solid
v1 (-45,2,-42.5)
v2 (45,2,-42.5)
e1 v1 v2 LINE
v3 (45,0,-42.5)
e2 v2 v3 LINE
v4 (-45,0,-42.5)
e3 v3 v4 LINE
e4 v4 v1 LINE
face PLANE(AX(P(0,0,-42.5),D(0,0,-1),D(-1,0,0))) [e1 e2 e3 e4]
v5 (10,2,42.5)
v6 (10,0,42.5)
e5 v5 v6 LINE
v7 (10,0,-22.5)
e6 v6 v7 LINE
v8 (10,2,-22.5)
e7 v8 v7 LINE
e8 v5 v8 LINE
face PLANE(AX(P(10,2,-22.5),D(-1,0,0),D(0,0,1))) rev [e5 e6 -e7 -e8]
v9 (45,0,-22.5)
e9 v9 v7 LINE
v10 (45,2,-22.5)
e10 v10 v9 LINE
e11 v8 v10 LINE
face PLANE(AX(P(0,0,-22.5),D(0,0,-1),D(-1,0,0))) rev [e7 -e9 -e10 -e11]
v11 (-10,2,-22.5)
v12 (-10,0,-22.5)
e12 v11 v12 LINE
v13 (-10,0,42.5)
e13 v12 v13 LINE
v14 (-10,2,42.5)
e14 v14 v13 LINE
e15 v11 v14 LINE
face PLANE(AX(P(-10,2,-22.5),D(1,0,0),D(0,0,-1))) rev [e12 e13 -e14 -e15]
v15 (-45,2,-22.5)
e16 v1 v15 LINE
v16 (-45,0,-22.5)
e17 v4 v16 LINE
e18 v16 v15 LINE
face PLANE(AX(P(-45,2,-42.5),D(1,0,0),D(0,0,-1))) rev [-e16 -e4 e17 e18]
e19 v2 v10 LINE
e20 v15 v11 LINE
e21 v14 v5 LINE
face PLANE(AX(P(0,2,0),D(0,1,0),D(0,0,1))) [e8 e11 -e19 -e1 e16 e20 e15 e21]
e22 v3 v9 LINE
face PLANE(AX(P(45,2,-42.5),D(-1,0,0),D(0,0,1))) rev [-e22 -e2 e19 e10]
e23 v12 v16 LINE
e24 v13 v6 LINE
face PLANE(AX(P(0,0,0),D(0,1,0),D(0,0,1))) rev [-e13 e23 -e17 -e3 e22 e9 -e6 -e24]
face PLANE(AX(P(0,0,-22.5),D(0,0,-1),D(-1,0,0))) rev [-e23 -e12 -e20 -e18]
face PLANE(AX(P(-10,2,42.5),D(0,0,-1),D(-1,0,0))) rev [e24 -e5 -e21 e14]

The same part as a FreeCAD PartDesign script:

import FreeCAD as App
import Part
import Sketcher

doc = App.newDocument("Part")
params = doc.addObject("Spreadsheet::Sheet", "Params")
for row, (alias, value) in enumerate([
    ("sketch1_width", "20 mm"),
    ("sketch1_height", "65 mm"),
    ("pad1_length", "2 mm"),
    ("sketch2_width", "90 mm"),
    ("sketch2_height", "2 mm"),
    ("pad2_length", "20 mm"),
], start=1):
    params.set(f"A{row}", alias)
    params.set(f"B{row}", "=" + value)
    params.setAlias(f"B{row}", alias)

body = doc.addObject("PartDesign::Body", "Body")

sketch1 = body.newObject("Sketcher::SketchObject", "Sketch")
sketch1.AttachmentSupport = (doc.getObject("XZ_Plane"), [""])
sketch1.MapMode = "FlatFace"
sketch1.addGeometry([
    Part.LineSegment(App.Vector(-10, -22, 0), App.Vector(-10, 42, 0)),
    Part.LineSegment(App.Vector(-10, 42, 0), App.Vector(10, 42, 0)),
    Part.LineSegment(App.Vector(10, 42, 0), App.Vector(10, -22, 0)),
    Part.LineSegment(App.Vector(10, -22, 0), App.Vector(-10, -22, 0)),
], False)
sketch1.addConstraint([
    Sketcher.Constraint("Coincident", 0, 2, 1, 1),
    Sketcher.Constraint("Coincident", 1, 2, 2, 1),
    Sketcher.Constraint("Coincident", 2, 2, 3, 1),
    Sketcher.Constraint("Coincident", 3, 2, 0, 1),
    Sketcher.Constraint("Vertical", 0),
    Sketcher.Constraint("Horizontal", 1),
    Sketcher.Constraint("Vertical", 2),
    Sketcher.Constraint("Horizontal", 3),
    Sketcher.Constraint("DistanceX", 1, 1, 1, 2, 20.0),
    Sketcher.Constraint("DistanceY", 0, 1, 0, 2, 65.0),
    Sketcher.Constraint("DistanceX", 0, 2, -1, 1, 10.0),
    Sketcher.Constraint("DistanceY", -1, 1, 0, 2, 42.5),
])
sketch1.setExpression("Constraints[8]", "Params.sketch1_width")
sketch1.setExpression("Constraints[9]", "Params.sketch1_height")
pad1 = body.newObject("PartDesign::Pad", "Pad")
pad1.Profile = sketch1
pad1.setExpression("Length", "Params.pad1_length")
pad1.Reversed = True

sketch2 = body.newObject("Sketcher::SketchObject", "Sketch001")
sketch2.AttachmentSupport = (doc.getObject("XY_Plane"), [""])
sketch2.MapMode = "FlatFace"
sketch2.AttachmentOffset = App.Placement(App.Vector(0, 0, -22.5), App.Rotation())
sketch2.addGeometry([
    Part.LineSegment(App.Vector(45, 2, 0), App.Vector(45, 0, 0)),
    Part.LineSegment(App.Vector(45, 0, 0), App.Vector(-45, 0, 0)),
    Part.LineSegment(App.Vector(-45, 0, 0), App.Vector(-45, 2, 0)),
    Part.LineSegment(App.Vector(-45, 2, 0), App.Vector(45, 2, 0)),
], False)
sketch2.addConstraint([
    Sketcher.Constraint("Coincident", 0, 2, 1, 1),
    Sketcher.Constraint("Coincident", 1, 2, 2, 1),
    Sketcher.Constraint("Coincident", 2, 2, 3, 1),
    Sketcher.Constraint("Coincident", 3, 2, 0, 1),
    Sketcher.Constraint("Vertical", 0),
    Sketcher.Constraint("Horizontal", 1),
    Sketcher.Constraint("Vertical", 2),
    Sketcher.Constraint("Horizontal", 3),
    Sketcher.Constraint("Symmetric", 0, 2, 1, 2, -1, 1),
    Sketcher.Constraint("DistanceX", 1, 2, 1, 1, 90.0),
    Sketcher.Constraint("DistanceY", 0, 2, 0, 1, 2.0),
])
sketch2.setExpression("Constraints[9]", "Params.sketch2_width")
sketch2.setExpression("Constraints[10]", "Params.sketch2_height")
pad2 = body.newObject("PartDesign::Pad", "Pad001")
pad2.Profile = sketch2
pad2.setExpression("Length", "Params.pad2_length")
pad2.Reversed = True

doc.recompute()
